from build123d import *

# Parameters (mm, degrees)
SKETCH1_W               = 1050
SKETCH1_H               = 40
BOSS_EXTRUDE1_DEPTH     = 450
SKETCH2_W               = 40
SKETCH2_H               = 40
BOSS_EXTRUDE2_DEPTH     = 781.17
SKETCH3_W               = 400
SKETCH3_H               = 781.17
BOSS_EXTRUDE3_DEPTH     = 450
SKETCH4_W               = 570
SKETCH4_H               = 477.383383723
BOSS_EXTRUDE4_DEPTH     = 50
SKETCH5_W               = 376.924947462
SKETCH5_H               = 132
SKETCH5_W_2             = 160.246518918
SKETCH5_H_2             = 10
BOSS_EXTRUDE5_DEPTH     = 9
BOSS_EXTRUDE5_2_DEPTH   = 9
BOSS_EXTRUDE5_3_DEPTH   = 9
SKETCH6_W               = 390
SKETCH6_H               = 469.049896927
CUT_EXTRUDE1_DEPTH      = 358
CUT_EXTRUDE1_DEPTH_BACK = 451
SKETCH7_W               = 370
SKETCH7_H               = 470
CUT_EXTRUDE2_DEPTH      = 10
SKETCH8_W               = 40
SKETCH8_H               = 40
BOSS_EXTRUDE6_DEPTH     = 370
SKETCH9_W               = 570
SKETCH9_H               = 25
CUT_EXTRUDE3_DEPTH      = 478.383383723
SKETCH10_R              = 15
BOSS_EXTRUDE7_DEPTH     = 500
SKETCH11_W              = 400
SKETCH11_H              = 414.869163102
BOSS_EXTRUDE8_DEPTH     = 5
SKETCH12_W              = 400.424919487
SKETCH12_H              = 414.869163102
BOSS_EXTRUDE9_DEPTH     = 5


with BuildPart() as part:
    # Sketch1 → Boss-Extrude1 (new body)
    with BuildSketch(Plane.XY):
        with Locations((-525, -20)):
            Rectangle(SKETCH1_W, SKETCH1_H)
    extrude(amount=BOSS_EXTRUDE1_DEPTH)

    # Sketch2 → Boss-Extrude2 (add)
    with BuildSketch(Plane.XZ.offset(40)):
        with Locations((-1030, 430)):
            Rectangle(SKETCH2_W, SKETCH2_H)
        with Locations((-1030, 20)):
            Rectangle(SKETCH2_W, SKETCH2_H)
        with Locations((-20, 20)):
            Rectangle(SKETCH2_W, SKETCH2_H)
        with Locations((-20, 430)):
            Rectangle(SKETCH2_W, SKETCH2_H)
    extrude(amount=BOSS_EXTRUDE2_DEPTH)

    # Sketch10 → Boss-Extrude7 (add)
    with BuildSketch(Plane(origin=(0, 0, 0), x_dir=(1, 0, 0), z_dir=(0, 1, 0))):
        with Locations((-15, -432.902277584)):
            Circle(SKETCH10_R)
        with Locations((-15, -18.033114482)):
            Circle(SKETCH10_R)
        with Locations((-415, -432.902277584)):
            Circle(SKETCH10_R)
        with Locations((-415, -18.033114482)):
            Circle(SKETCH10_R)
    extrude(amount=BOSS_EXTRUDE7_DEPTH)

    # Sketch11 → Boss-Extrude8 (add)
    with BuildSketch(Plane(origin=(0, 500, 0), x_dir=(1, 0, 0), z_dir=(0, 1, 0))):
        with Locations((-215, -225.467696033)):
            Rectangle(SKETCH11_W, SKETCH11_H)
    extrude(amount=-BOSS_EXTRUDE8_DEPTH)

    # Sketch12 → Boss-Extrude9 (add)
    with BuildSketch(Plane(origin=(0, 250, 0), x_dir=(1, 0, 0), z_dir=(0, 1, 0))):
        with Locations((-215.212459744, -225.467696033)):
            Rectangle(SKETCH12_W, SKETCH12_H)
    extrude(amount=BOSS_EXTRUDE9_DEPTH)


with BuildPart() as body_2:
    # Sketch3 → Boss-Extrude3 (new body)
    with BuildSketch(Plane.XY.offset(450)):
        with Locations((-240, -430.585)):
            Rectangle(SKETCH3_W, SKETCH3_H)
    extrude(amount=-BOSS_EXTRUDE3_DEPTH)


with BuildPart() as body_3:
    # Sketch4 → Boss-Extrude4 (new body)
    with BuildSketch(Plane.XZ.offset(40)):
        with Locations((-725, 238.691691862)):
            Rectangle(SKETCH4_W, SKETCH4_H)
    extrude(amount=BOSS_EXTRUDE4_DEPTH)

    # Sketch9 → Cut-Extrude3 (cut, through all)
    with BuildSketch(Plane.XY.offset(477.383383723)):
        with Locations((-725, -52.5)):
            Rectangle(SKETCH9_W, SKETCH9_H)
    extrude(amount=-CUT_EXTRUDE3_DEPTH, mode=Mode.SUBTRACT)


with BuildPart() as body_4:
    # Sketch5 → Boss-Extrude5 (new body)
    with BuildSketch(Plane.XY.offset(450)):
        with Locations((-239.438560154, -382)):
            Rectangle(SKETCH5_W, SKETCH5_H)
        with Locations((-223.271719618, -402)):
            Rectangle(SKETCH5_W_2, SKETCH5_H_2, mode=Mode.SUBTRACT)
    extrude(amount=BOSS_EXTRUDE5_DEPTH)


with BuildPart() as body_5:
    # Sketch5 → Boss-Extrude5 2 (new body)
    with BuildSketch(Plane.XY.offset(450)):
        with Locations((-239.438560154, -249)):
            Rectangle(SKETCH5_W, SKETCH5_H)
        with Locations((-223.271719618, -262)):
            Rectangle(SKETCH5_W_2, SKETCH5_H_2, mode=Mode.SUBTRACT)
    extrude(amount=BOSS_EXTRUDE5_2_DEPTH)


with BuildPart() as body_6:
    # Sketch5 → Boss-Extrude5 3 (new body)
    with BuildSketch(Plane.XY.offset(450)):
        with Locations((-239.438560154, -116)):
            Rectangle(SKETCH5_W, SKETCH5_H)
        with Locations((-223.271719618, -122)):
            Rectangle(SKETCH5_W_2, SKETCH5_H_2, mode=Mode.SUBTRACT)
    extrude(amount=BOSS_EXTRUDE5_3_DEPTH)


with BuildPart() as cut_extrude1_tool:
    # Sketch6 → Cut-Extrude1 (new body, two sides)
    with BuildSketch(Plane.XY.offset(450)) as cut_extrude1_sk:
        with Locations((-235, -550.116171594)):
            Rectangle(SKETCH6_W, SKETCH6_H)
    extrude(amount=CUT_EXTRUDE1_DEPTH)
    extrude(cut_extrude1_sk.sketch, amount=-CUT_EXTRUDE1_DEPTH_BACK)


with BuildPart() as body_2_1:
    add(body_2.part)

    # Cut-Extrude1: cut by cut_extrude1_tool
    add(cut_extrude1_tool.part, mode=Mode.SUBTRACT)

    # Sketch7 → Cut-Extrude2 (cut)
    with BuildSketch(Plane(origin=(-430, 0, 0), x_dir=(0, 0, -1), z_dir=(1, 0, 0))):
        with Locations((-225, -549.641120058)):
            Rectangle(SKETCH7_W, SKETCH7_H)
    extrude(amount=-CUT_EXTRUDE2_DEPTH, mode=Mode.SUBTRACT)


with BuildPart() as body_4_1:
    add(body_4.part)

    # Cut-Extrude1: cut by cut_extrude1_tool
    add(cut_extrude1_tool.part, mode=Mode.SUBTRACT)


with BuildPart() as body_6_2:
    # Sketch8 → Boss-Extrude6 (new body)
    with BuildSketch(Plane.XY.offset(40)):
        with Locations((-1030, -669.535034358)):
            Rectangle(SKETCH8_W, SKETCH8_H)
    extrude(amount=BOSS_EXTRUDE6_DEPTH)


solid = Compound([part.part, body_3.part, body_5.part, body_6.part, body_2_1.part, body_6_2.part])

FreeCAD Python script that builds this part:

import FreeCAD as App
import Part
import Sketcher

doc = App.newDocument("Part")
body = doc.addObject("PartDesign::Body", "Body")

sketch1 = body.newObject("Sketcher::SketchObject", "Sketch")
sketch1.AttachmentSupport = (doc.getObject("XY_Plane"), [""])
sketch1.MapMode = "FlatFace"
sketch1.addGeometry([
    Part.LineSegment(App.Vector(-1050, 0, 0), App.Vector(-1050, -40, 0)),
    Part.LineSegment(App.Vector(-1050, -40, 0), App.Vector(0, -40, 0)),
    Part.LineSegment(App.Vector(0, -40, 0), App.Vector(0, 0, 0)),
    Part.LineSegment(App.Vector(0, 0, 0), App.Vector(-1050, 0, 0)),
], False)
sketch1.addConstraint([
    Sketcher.Constraint("Coincident", 0, 2, 1, 1),
    Sketcher.Constraint("Coincident", 1, 2, 2, 1),
    Sketcher.Constraint("Coincident", 2, 2, 3, 1),
    Sketcher.Constraint("Coincident", 3, 2, 0, 1),
    Sketcher.Constraint("Vertical", 0),
    Sketcher.Constraint("Horizontal", 1),
    Sketcher.Constraint("Vertical", 2),
    Sketcher.Constraint("Horizontal", 3),
    Sketcher.Constraint("Coincident", 2, 2, -1, 1),
    Sketcher.Constraint("DistanceX", 1, 1, 1, 2, 1050.0),
    Sketcher.Constraint("DistanceY", 0, 2, 0, 1, 40.0),
])
pad1 = body.newObject("PartDesign::Pad", "Pad")
pad1.Profile = sketch1
pad1.Length = 450

sketch2 = body.newObject("Sketcher::SketchObject", "Sketch001")
sketch2.AttachmentSupport = (doc.getObject("XZ_Plane"), [""])
sketch2.MapMode = "FlatFace"
sketch2.AttachmentOffset = App.Placement(App.Vector(0, 0, 40), App.Rotation())
sketch2.addGeometry([
    Part.LineSegment(App.Vector(-1050, 450, 0), App.Vector(-1050, 410, 0)),
    Part.LineSegment(App.Vector(-1050, 410, 0), App.Vector(-1010, 410, 0)),
    Part.LineSegment(App.Vector(-1010, 410, 0), App.Vector(-1010, 450, 0)),
    Part.LineSegment(App.Vector(-1010, 450, 0), App.Vector(-1050, 450, 0)),
    Part.LineSegment(App.Vector(-1050, 40, 0), App.Vector(-1050, 0, 0)),
    Part.LineSegment(App.Vector(-1050, 0, 0), App.Vector(-1010, 0, 0)),
    Part.LineSegment(App.Vector(-1010, 0, 0), App.Vector(-1010, 40, 0)),
    Part.LineSegment(App.Vector(-1010, 40, 0), App.Vector(-1050, 40, 0)),
    Part.LineSegment(App.Vector(-40, 40, 0), App.Vector(-40, 0, 0)),
    Part.LineSegment(App.Vector(-40, 0, 0), App.Vector(0, 0, 0)),
    Part.LineSegment(App.Vector(0, 0, 0), App.Vector(0, 40, 0)),
    Part.LineSegment(App.Vector(0, 40, 0), App.Vector(-40, 40, 0)),
    Part.LineSegment(App.Vector(-40, 450, 0), App.Vector(-40, 410, 0)),
    Part.LineSegment(App.Vector(-40, 410, 0), App.Vector(0, 410, 0)),
    Part.LineSegment(App.Vector(0, 410, 0), App.Vector(0, 450, 0)),
    Part.LineSegment(App.Vector(0, 450, 0), App.Vector(-40, 450, 0)),
], False)
sketch2.addConstraint([
    Sketcher.Constraint("Coincident", 0, 2, 1, 1),
    Sketcher.Constraint("Coincident", 1, 2, 2, 1),
    Sketcher.Constraint("Coincident", 2, 2, 3, 1),
    Sketcher.Constraint("Coincident", 3, 2, 0, 1),
    Sketcher.Constraint("Coincident", 4, 2, 5, 1),
    Sketcher.Constraint("Coincident", 5, 2, 6, 1),
    Sketcher.Constraint("Coincident", 6, 2, 7, 1),
    Sketcher.Constraint("Coincident", 7, 2, 4, 1),
    Sketcher.Constraint("Coincident", 8, 2, 9, 1),
    Sketcher.Constraint("Coincident", 9, 2, 10, 1),
    Sketcher.Constraint("Coincident", 10, 2, 11, 1),
    Sketcher.Constraint("Coincident", 11, 2, 8, 1),
    Sketcher.Constraint("Coincident", 12, 2, 13, 1),
    Sketcher.Constraint("Coincident", 13, 2, 14, 1),
    Sketcher.Constraint("Coincident", 14, 2, 15, 1),
    Sketcher.Constraint("Coincident", 15, 2, 12, 1),
    Sketcher.Constraint("Vertical", 0),
    Sketcher.Constraint("Horizontal", 1),
    Sketcher.Constraint("Vertical", 2),
    Sketcher.Constraint("Horizontal", 3),
    Sketcher.Constraint("Vertical", 4),
    Sketcher.Constraint("Horizontal", 5),
    Sketcher.Constraint("Vertical", 6),
    Sketcher.Constraint("Horizontal", 7),
    Sketcher.Constraint("Vertical", 8),
    Sketcher.Constraint("Horizontal", 9),
    Sketcher.Constraint("Vertical", 10),
    Sketcher.Constraint("Horizontal", 11),
    Sketcher.Constraint("Vertical", 12),
    Sketcher.Constraint("Horizontal", 13),
    Sketcher.Constraint("Vertical", 14),
    Sketcher.Constraint("Horizontal", 15),
    Sketcher.Constraint("Coincident", 9, 2, -1, 1),
    Sketcher.Constraint("PointOnObject", 4, 2, -1),
    Sketcher.Constraint("PointOnObject", 13, 2, -2),
    Sketcher.Constraint("Horizontal", 7, 2, 10, 2),
    Sketcher.Constraint("Horizontal", 1, 2, 12, 2),
    Sketcher.Constraint("Horizontal", 3, 2, 14, 2),
    Sketcher.Constraint("Vertical", 3, 2, 4, 2),
    Sketcher.Constraint("Vertical", 2, 2, 5, 2),
    Sketcher.Constraint("Vertical", 11, 2, 12, 2),
    Sketcher.Constraint("Equal", 7, 9),
    Sketcher.Constraint("Equal", 15, 0),
    Sketcher.Constraint("Equal", 2, 4),
    Sketcher.Constraint("DistanceX", 1, 1, 1, 2, 40.0),
    Sketcher.Constraint("DistanceX", 0, 2, -1, 1, 1050.0),
    Sketcher.Constraint("DistanceY", -1, 1, 0, 2, 410.0),
])
pad2 = body.newObject("PartDesign::Pad", "Pad001")
pad2.Profile = sketch2
pad2.Length = 781.17

sketch3 = body.newObject("Sketcher::SketchObject", "Sketch002")
sketch3.AttachmentSupport = (doc.getObject("XZ_Plane"), [""])
sketch3.MapMode = "FlatFace"
sketch3.addGeometry([
    Part.Circle(App.Vector(-15, 432.902278, 0), App.Vector(0, 0, 1), 15),
    Part.Circle(App.Vector(-15, 18.033114, 0), App.Vector(0, 0, 1), 15),
    Part.Circle(App.Vector(-415, 432.902278, 0), App.Vector(0, 0, 1), 15),
    Part.Circle(App.Vector(-415, 18.033114, 0), App.Vector(0, 0, 1), 15),
], False)
sketch3.addConstraint([
    Sketcher.Constraint("Equal", 0, 1),
    Sketcher.Constraint("Equal", 1, 2),
    Sketcher.Constraint("Equal", 2, 3),
    Sketcher.Constraint("Horizontal", 0, 3, 2, 3),
    Sketcher.Constraint("Horizontal", 1, 3, 3, 3),
    Sketcher.Constraint("Vertical", 0, 3, 1, 3),
    Sketcher.Constraint("Vertical", 2, 3, 3, 3),
    Sketcher.Constraint("Diameter", 0, 30.0),
    Sketcher.Constraint("DistanceX", 0, 3, -1, 1, 15.0),
    Sketcher.Constraint("DistanceX", 2, 3, -1, 1, 415.0),
    Sketcher.Constraint("DistanceY", -1, 1, 0, 3, 432.902278),
    Sketcher.Constraint("DistanceY", -1, 1, 1, 3, 18.033114),
])
pad3 = body.newObject("PartDesign::Pad", "Pad002")
pad3.Profile = sketch3
pad3.Length = 500
pad3.Reversed = True

sketch4 = body.newObject("Sketcher::SketchObject", "Sketch003")
sketch4.AttachmentSupport = (doc.getObject("XZ_Plane"), [""])
sketch4.MapMode = "FlatFace"
sketch4.AttachmentOffset = App.Placement(App.Vector(0, 0, -500), App.Rotation())
sketch4.addGeometry([
    Part.LineSegment(App.Vector(-415, 18.033114, 0), App.Vector(-415, 432.902278, 0)),
    Part.LineSegment(App.Vector(-415, 432.902278, 0), App.Vector(-15, 432.902278, 0)),
    Part.LineSegment(App.Vector(-15, 432.902278, 0), App.Vector(-15, 18.033114, 0)),
    Part.LineSegment(App.Vector(-15, 18.033114, 0), App.Vector(-415, 18.033114, 0)),
], False)
sketch4.addConstraint([
    Sketcher.Constraint("Coincident", 0, 2, 1, 1),
    Sketcher.Constraint("Coincident", 1, 2, 2, 1),
    Sketcher.Constraint("Coincident", 2, 2, 3, 1),
    Sketcher.Constraint("Coincident", 3, 2, 0, 1),
    Sketcher.Constraint("Vertical", 0),
    Sketcher.Constraint("Horizontal", 1),
    Sketcher.Constraint("Vertical", 2),
    Sketcher.Constraint("Horizontal", 3),
    Sketcher.Constraint("DistanceX", 1, 1, 1, 2, 400.0),
    Sketcher.Constraint("DistanceX", 0, 2, -1, 1, 415.0),
    Sketcher.Constraint("DistanceY", 0, 1, 0, 2, 414.869163),
    Sketcher.Constraint("DistanceY", -1, 1, 0, 2, 432.902278),
])
pad4 = body.newObject("PartDesign::Pad", "Pad003")
pad4.Profile = sketch4
pad4.Length = 5

sketch5 = body.newObject("Sketcher::SketchObject", "Sketch004")
sketch5.AttachmentSupport = (doc.getObject("XZ_Plane"), [""])
sketch5.MapMode = "FlatFace"
sketch5.AttachmentOffset = App.Placement(App.Vector(0, 0, -250), App.Rotation())
sketch5.addGeometry([
    Part.LineSegment(App.Vector(-415.424919, 18.033114, 0), App.Vector(-415.424919, 432.902278, 0)),
    Part.LineSegment(App.Vector(-415.424919, 432.902278, 0), App.Vector(-15, 432.902278, 0)),
    Part.LineSegment(App.Vector(-15, 432.902278, 0), App.Vector(-15, 18.033114, 0)),
    Part.LineSegment(App.Vector(-15, 18.033114, 0), App.Vector(-415.424919, 18.033114, 0)),
], False)
sketch5.addConstraint([
    Sketcher.Constraint("Coincident", 0, 2, 1, 1),
    Sketcher.Constraint("Coincident", 1, 2, 2, 1),
    Sketcher.Constraint("Coincident", 2, 2, 3, 1),
    Sketcher.Constraint("Coincident", 3, 2, 0, 1),
    Sketcher.Constraint("Vertical", 0),
    Sketcher.Constraint("Horizontal", 1),
    Sketcher.Constraint("Vertical", 2),
    Sketcher.Constraint("Horizontal", 3),
    Sketcher.Constraint("DistanceX", 1, 2, -1, 1, 15.0),
    Sketcher.Constraint("DistanceX", 1, 1, 1, 2, 400.424919),
    Sketcher.Constraint("DistanceY", 0, 1, 0, 2, 414.869163),
    Sketcher.Constraint("DistanceY", -1, 1, 0, 2, 432.902278),
])
pad5 = body.newObject("PartDesign::Pad", "Pad004")
pad5.Profile = sketch5
pad5.Length = 5
pad5.Reversed = True
body2 = doc.addObject("PartDesign::Body", "Body001")

sketch6 = body2.newObject("Sketcher::SketchObject", "Sketch005")
sketch6.AttachmentSupport = (doc.getObject("XY_Plane001"), [""])
sketch6.MapMode = "FlatFace"
sketch6.AttachmentOffset = App.Placement(App.Vector(0, 0, 450), App.Rotation())
sketch6.addGeometry([
    Part.LineSegment(App.Vector(-440, -40, 0), App.Vector(-440, -821.17, 0)),
    Part.LineSegment(App.Vector(-440, -821.17, 0), App.Vector(-40, -821.17, 0)),
    Part.LineSegment(App.Vector(-40, -821.17, 0), App.Vector(-40, -40, 0)),
    Part.LineSegment(App.Vector(-40, -40, 0), App.Vector(-440, -40, 0)),
], False)
sketch6.addConstraint([
    Sketcher.Constraint("Coincident", 0, 2, 1, 1),
    Sketcher.Constraint("Coincident", 1, 2, 2, 1),
    Sketcher.Constraint("Coincident", 2, 2, 3, 1),
    Sketcher.Constraint("Coincident", 3, 2, 0, 1),
    Sketcher.Constraint("Vertical", 0),
    Sketcher.Constraint("Horizontal", 1),
    Sketcher.Constraint("Vertical", 2),
    Sketcher.Constraint("Horizontal", 3),
    Sketcher.Constraint("DistanceX", 1, 1, 1, 2, 400.0),
    Sketcher.Constraint("DistanceX", 0, 2, -1, 1, 440.0),
    Sketcher.Constraint("DistanceY", 2, 2, -1, 1, 40.0),
    Sketcher.Constraint("DistanceY", 0, 2, 0, 1, 781.17),
])
pad6 = body2.newObject("PartDesign::Pad", "Pad005")
pad6.Profile = sketch6
pad6.Length = 450
pad6.Reversed = True
body3 = doc.addObject("PartDesign::Body", "Body002")

sketch7 = body3.newObject("Sketcher::SketchObject", "Sketch006")
sketch7.AttachmentSupport = (doc.getObject("XZ_Plane002"), [""])
sketch7.MapMode = "FlatFace"
sketch7.AttachmentOffset = App.Placement(App.Vector(0, 0, 40), App.Rotation())
sketch7.addGeometry([
    Part.LineSegment(App.Vector(-1010, 477.383384, 0), App.Vector(-1010, 0, 0)),
    Part.LineSegment(App.Vector(-1010, 0, 0), App.Vector(-440, 0, 0)),
    Part.LineSegment(App.Vector(-440, 0, 0), App.Vector(-440, 477.383384, 0)),
    Part.LineSegment(App.Vector(-440, 477.383384, 0), App.Vector(-1010, 477.383384, 0)),
], False)
sketch7.addConstraint([
    Sketcher.Constraint("Coincident", 0, 2, 1, 1),
    Sketcher.Constraint("Coincident", 1, 2, 2, 1),
    Sketcher.Constraint("Coincident", 2, 2, 3, 1),
    Sketcher.Constraint("Coincident", 3, 2, 0, 1),
    Sketcher.Constraint("Vertical", 0),
    Sketcher.Constraint("Horizontal", 1),
    Sketcher.Constraint("Vertical", 2),
    Sketcher.Constraint("Horizontal", 3),
    Sketcher.Constraint("PointOnObject", 0, 2, -1),
    Sketcher.Constraint("DistanceX", 1, 1, 1, 2, 570.0),
    Sketcher.Constraint("DistanceX", 0, 2, -1, 1, 1010.0),
    Sketcher.Constraint("DistanceY", 0, 2, 0, 1, 477.383384),
])
pad7 = body3.newObject("PartDesign::Pad", "Pad006")
pad7.Profile = sketch7
pad7.Length = 50

sketch8 = body3.newObject("Sketcher::SketchObject", "Sketch007")
sketch8.AttachmentSupport = (doc.getObject("XY_Plane002"), [""])
sketch8.MapMode = "FlatFace"
sketch8.AttachmentOffset = App.Placement(App.Vector(0, 0, 477.383384), App.Rotation())
sketch8.addGeometry([
    Part.LineSegment(App.Vector(-1010, -40, 0), App.Vector(-1010, -65, 0)),
    Part.LineSegment(App.Vector(-1010, -65, 0), App.Vector(-440, -65, 0)),
    Part.LineSegment(App.Vector(-440, -65, 0), App.Vector(-440, -40, 0)),
    Part.LineSegment(App.Vector(-440, -40, 0), App.Vector(-1010, -40, 0)),
], False)
sketch8.addConstraint([
    Sketcher.Constraint("Coincident", 0, 2, 1, 1),
    Sketcher.Constraint("Coincident", 1, 2, 2, 1),
    Sketcher.Constraint("Coincident", 2, 2, 3, 1),
    Sketcher.Constraint("Coincident", 3, 2, 0, 1),
    Sketcher.Constraint("Vertical", 0),
    Sketcher.Constraint("Horizontal", 1),
    Sketcher.Constraint("Vertical", 2),
    Sketcher.Constraint("Horizontal", 3),
    Sketcher.Constraint("DistanceX", 1, 1, 1, 2, 570.0),
    Sketcher.Constraint("DistanceY", 0, 2, 0, 1, 25.0),
    Sketcher.Constraint("DistanceX", 0, 2, -1, 1, 1010.0),
    Sketcher.Constraint("DistanceY", 0, 2, -1, 1, 65.0),
])
pocket1 = body3.newObject("PartDesign::Pocket", "Pocket")
pocket1.Profile = sketch8
pocket1.Type = "ThroughAll"
body4 = doc.addObject("PartDesign::Body", "Body003")

sketch9 = body4.newObject("Sketcher::SketchObject", "Sketch008")
sketch9.AttachmentSupport = (doc.getObject("XY_Plane003"), [""])
sketch9.MapMode = "FlatFace"
sketch9.AttachmentOffset = App.Placement(App.Vector(0, 0, 450), App.Rotation())
sketch9.addGeometry([
    Part.LineSegment(App.Vector(-427.901034, -316, 0), App.Vector(-427.901034, -448, 0)),
    Part.LineSegment(App.Vector(-427.901034, -448, 0), App.Vector(-50.976086, -448, 0)),
    Part.LineSegment(App.Vector(-50.976086, -448, 0), App.Vector(-50.976086, -316, 0)),
    Part.LineSegment(App.Vector(-50.976086, -316, 0), App.Vector(-427.901034, -316, 0)),
    Part.LineSegment(App.Vector(-143.14846, -407, 0), App.Vector(-303.394979, -407, 0)),
    Part.LineSegment(App.Vector(-303.394979, -407, 0), App.Vector(-303.394979, -397, 0)),
    Part.LineSegment(App.Vector(-303.394979, -397, 0), App.Vector(-143.14846, -397, 0)),
    Part.LineSegment(App.Vector(-143.14846, -397, 0), App.Vector(-143.14846, -407, 0)),
], False)
sketch9.addConstraint([
    Sketcher.Constraint("Coincident", 0, 2, 1, 1),
    Sketcher.Constraint("Coincident", 1, 2, 2, 1),
    Sketcher.Constraint("Coincident", 2, 2, 3, 1),
    Sketcher.Constraint("Coincident", 3, 2, 0, 1),
    Sketcher.Constraint("Coincident", 4, 2, 5, 1),
    Sketcher.Constraint("Coincident", 5, 2, 6, 1),
    Sketcher.Constraint("Coincident", 6, 2, 7, 1),
    Sketcher.Constraint("Coincident", 7, 2, 4, 1),
    Sketcher.Constraint("Vertical", 0),
    Sketcher.Constraint("Horizontal", 1),
    Sketcher.Constraint("Vertical", 2),
    Sketcher.Constraint("Horizontal", 3),
    Sketcher.Constraint("Horizontal", 4),
    Sketcher.Constraint("Vertical", 5),
    Sketcher.Constraint("Horizontal", 6),
    Sketcher.Constraint("Vertical", 7),
    Sketcher.Constraint("DistanceY", 0, 2, 0, 1, 132.0),
    Sketcher.Constraint("DistanceY", 5, 1, 5, 2, 10.0),
    Sketcher.Constraint("DistanceY", 0, 2, -1, 1, 448.0),
    Sketcher.Constraint("DistanceY", 4, 2, -1, 1, 407.0),
    Sketcher.Constraint("DistanceX", 4, 2, 4, 1, 160.246519),
    Sketcher.Constraint("DistanceX", 1, 1, 1, 2, 376.924947),
    Sketcher.Constraint("DistanceX", 4, 2, -1, 1, 303.394979),
    Sketcher.Constraint("DistanceX", 0, 2, -1, 1, 427.901034),
])
pad8 = body4.newObject("PartDesign::Pad", "Pad007")
pad8.Profile = sketch9
pad8.Length = 9
body5 = doc.addObject("PartDesign::Body", "Body004")

sketch10 = body5.newObject("Sketcher::SketchObject", "Sketch009")
sketch10.AttachmentSupport = (doc.getObject("XY_Plane004"), [""])
sketch10.MapMode = "FlatFace"
sketch10.AttachmentOffset = App.Placement(App.Vector(0, 0, 450), App.Rotation())
sketch10.addGeometry([
    Part.LineSegment(App.Vector(-427.901034, -183, 0), App.Vector(-427.901034, -315, 0)),
    Part.LineSegment(App.Vector(-427.901034, -315, 0), App.Vector(-50.976086, -315, 0)),
    Part.LineSegment(App.Vector(-50.976086, -315, 0), App.Vector(-50.976086, -183, 0)),
    Part.LineSegment(App.Vector(-50.976086, -183, 0), App.Vector(-427.901034, -183, 0)),
    Part.LineSegment(App.Vector(-143.14846, -267, 0), App.Vector(-303.394979, -267, 0)),
    Part.LineSegment(App.Vector(-303.394979, -267, 0), App.Vector(-303.394979, -257, 0)),
    Part.LineSegment(App.Vector(-303.394979, -257, 0), App.Vector(-143.14846, -257, 0)),
    Part.LineSegment(App.Vector(-143.14846, -257, 0), App.Vector(-143.14846, -267, 0)),
], False)
sketch10.addConstraint([
    Sketcher.Constraint("Coincident", 0, 2, 1, 1),
    Sketcher.Constraint("Coincident", 1, 2, 2, 1),
    Sketcher.Constraint("Coincident", 2, 2, 3, 1),
    Sketcher.Constraint("Coincident", 3, 2, 0, 1),
    Sketcher.Constraint("Coincident", 4, 2, 5, 1),
    Sketcher.Constraint("Coincident", 5, 2, 6, 1),
    Sketcher.Constraint("Coincident", 6, 2, 7, 1),
    Sketcher.Constraint("Coincident", 7, 2, 4, 1),
    Sketcher.Constraint("Vertical", 0),
    Sketcher.Constraint("Horizontal", 1),
    Sketcher.Constraint("Vertical", 2),
    Sketcher.Constraint("Horizontal", 3),
    Sketcher.Constraint("Horizontal", 4),
    Sketcher.Constraint("Vertical", 5),
    Sketcher.Constraint("Horizontal", 6),
    Sketcher.Constraint("Vertical", 7),
    Sketcher.Constraint("DistanceY", 0, 2, 0, 1, 132.0),
    Sketcher.Constraint("DistanceY", 5, 1, 5, 2, 10.0),
    Sketcher.Constraint("DistanceY", 0, 2, -1, 1, 315.0),
    Sketcher.Constraint("DistanceY", 4, 2, -1, 1, 267.0),
    Sketcher.Constraint("DistanceX", 4, 2, 4, 1, 160.246519),
    Sketcher.Constraint("DistanceX", 1, 1, 1, 2, 376.924947),
    Sketcher.Constraint("DistanceX", 4, 2, -1, 1, 303.394979),
    Sketcher.Constraint("DistanceX", 0, 2, -1, 1, 427.901034),
])
pad9 = body5.newObject("PartDesign::Pad", "Pad008")
pad9.Profile = sketch10
pad9.Length = 9
body6 = doc.addObject("PartDesign::Body", "Body005")

sketch11 = body6.newObject("Sketcher::SketchObject", "Sketch010")
sketch11.AttachmentSupport = (doc.getObject("XY_Plane005"), [""])
sketch11.MapMode = "FlatFace"
sketch11.AttachmentOffset = App.Placement(App.Vector(0, 0, 450), App.Rotation())
sketch11.addGeometry([
    Part.LineSegment(App.Vector(-427.901034, -50, 0), App.Vector(-427.901034, -182, 0)),
    Part.LineSegment(App.Vector(-427.901034, -182, 0), App.Vector(-50.976086, -182, 0)),
    Part.LineSegment(App.Vector(-50.976086, -182, 0), App.Vector(-50.976086, -50, 0)),
    Part.LineSegment(App.Vector(-50.976086, -50, 0), App.Vector(-427.901034, -50, 0)),
    Part.LineSegment(App.Vector(-143.14846, -127, 0), App.Vector(-303.394979, -127, 0)),
    Part.LineSegment(App.Vector(-303.394979, -127, 0), App.Vector(-303.394979, -117, 0)),
    Part.LineSegment(App.Vector(-303.394979, -117, 0), App.Vector(-143.14846, -117, 0)),
    Part.LineSegment(App.Vector(-143.14846, -117, 0), App.Vector(-143.14846, -127, 0)),
], False)
sketch11.addConstraint([
    Sketcher.Constraint("Coincident", 0, 2, 1, 1),
    Sketcher.Constraint("Coincident", 1, 2, 2, 1),
    Sketcher.Constraint("Coincident", 2, 2, 3, 1),
    Sketcher.Constraint("Coincident", 3, 2, 0, 1),
    Sketcher.Constraint("Coincident", 4, 2, 5, 1),
    Sketcher.Constraint("Coincident", 5, 2, 6, 1),
    Sketcher.Constraint("Coincident", 6, 2, 7, 1),
    Sketcher.Constraint("Coincident", 7, 2, 4, 1),
    Sketcher.Constraint("Vertical", 0),
    Sketcher.Constraint("Horizontal", 1),
    Sketcher.Constraint("Vertical", 2),
    Sketcher.Constraint("Horizontal", 3),
    Sketcher.Constraint("Horizontal", 4),
    Sketcher.Constraint("Vertical", 5),
    Sketcher.Constraint("Horizontal", 6),
    Sketcher.Constraint("Vertical", 7),
    Sketcher.Constraint("DistanceY", 0, 2, 0, 1, 132.0),
    Sketcher.Constraint("DistanceY", 5, 1, 5, 2, 10.0),
    Sketcher.Constraint("DistanceY", 0, 2, -1, 1, 182.0),
    Sketcher.Constraint("DistanceY", 4, 2, -1, 1, 127.0),
    Sketcher.Constraint("DistanceX", 4, 2, 4, 1, 160.246519),
    Sketcher.Constraint("DistanceX", 1, 1, 1, 2, 376.924947),
    Sketcher.Constraint("DistanceX", 4, 2, -1, 1, 303.394979),
    Sketcher.Constraint("DistanceX", 0, 2, -1, 1, 427.901034),
])
pad10 = body6.newObject("PartDesign::Pad", "Pad009")
pad10.Profile = sketch11
pad10.Length = 9
body7 = doc.addObject("PartDesign::Body", "Body006")

sketch12 = body7.newObject("Sketcher::SketchObject", "Sketch011")
sketch12.AttachmentSupport = (doc.getObject("XY_Plane006"), [""])
sketch12.MapMode = "FlatFace"
sketch12.AttachmentOffset = App.Placement(App.Vector(0, 0, 450), App.Rotation())
sketch12.addGeometry([
    Part.LineSegment(App.Vector(-430, -315.591223, 0), App.Vector(-430, -784.64112, 0)),
    Part.LineSegment(App.Vector(-430, -784.64112, 0), App.Vector(-40, -784.64112, 0)),
    Part.LineSegment(App.Vector(-40, -784.64112, 0), App.Vector(-40, -315.591223, 0)),
    Part.LineSegment(App.Vector(-40, -315.591223, 0), App.Vector(-430, -315.591223, 0)),
], False)
sketch12.addConstraint([
    Sketcher.Constraint("Coincident", 0, 2, 1, 1),
    Sketcher.Constraint("Coincident", 1, 2, 2, 1),
    Sketcher.Constraint("Coincident", 2, 2, 3, 1),
    Sketcher.Constraint("Coincident", 3, 2, 0, 1),
    Sketcher.Constraint("Vertical", 0),
    Sketcher.Constraint("Horizontal", 1),
    Sketcher.Constraint("Vertical", 2),
    Sketcher.Constraint("Horizontal", 3),
    Sketcher.Constraint("DistanceX", 1, 1, 1, 2, 390.0),
    Sketcher.Constraint("DistanceX", 0, 2, -1, 1, 430.0),
    Sketcher.Constraint("DistanceY", 0, 2, 0, 1, 469.049897),
    Sketcher.Constraint("DistanceY", 0, 2, -1, 1, 784.64112),
])
pad11 = body7.newObject("PartDesign::Pad", "Pad010")
pad11.Profile = sketch12
pad11.Type = "TwoLengths"
pad11.Length = 358
pad11.Length2 = 451
doc.recompute()

body8 = doc.addObject("PartDesign::Body", "Body007")
body8.BaseFeature = body7
boolean = body2.newObject("PartDesign::Boolean", "Boolean")
boolean.Type = "Cut"
boolean.addObjects([body8])
doc.recompute()

sketch13 = body2.newObject("Sketcher::SketchObject", "Sketch012")
sketch13.AttachmentSupport = (doc.getObject("YZ_Plane001"), [""])
sketch13.MapMode = "FlatFace"
sketch13.AttachmentOffset = App.Placement(App.Vector(0, 0, -430), App.Rotation())
sketch13.addGeometry([
    Part.LineSegment(App.Vector(-314.64112, 410, 0), App.Vector(-784.64112, 410, 0)),
    Part.LineSegment(App.Vector(-784.64112, 410, 0), App.Vector(-784.64112, 40, 0)),
    Part.LineSegment(App.Vector(-784.64112, 40, 0), App.Vector(-314.64112, 40, 0)),
    Part.LineSegment(App.Vector(-314.64112, 40, 0), App.Vector(-314.64112, 410, 0)),
], False)
sketch13.addConstraint([
    Sketcher.Constraint("Coincident", 0, 2, 1, 1),
    Sketcher.Constraint("Coincident", 1, 2, 2, 1),
    Sketcher.Constraint("Coincident", 2, 2, 3, 1),
    Sketcher.Constraint("Coincident", 3, 2, 0, 1),
    Sketcher.Constraint("Horizontal", 0),
    Sketcher.Constraint("Vertical", 1),
    Sketcher.Constraint("Horizontal", 2),
    Sketcher.Constraint("Vertical", 3),
    Sketcher.Constraint("DistanceX", 0, 2, 0, 1, 470.0),
    Sketcher.Constraint("DistanceY", 1, 2, 1, 1, 370.0),
    Sketcher.Constraint("DistanceY", -1, 1, 0, 2, 410.0),
    Sketcher.Constraint("DistanceX", 0, 2, -1, 1, 784.64112),
])
pocket2 = body2.newObject("PartDesign::Pocket", "Pocket001")
pocket2.Profile = sketch13
pocket2.Length = 10
doc.recompute()

boolean2 = body4.newObject("PartDesign::Boolean", "Boolean001")
boolean2.Type = "Cut"
boolean2.addObjects([body7])
body9 = doc.addObject("PartDesign::Body", "Body008")

sketch14 = body9.newObject("Sketcher::SketchObject", "Sketch013")
sketch14.AttachmentSupport = (doc.getObject("XY_Plane008"), [""])
sketch14.MapMode = "FlatFace"
sketch14.AttachmentOffset = App.Placement(App.Vector(0, 0, 40), App.Rotation())
sketch14.addGeometry([
    Part.LineSegment(App.Vector(-1050, -649.535034, 0), App.Vector(-1050, -689.535034, 0)),
    Part.LineSegment(App.Vector(-1050, -689.535034, 0), App.Vector(-1010, -689.535034, 0)),
    Part.LineSegment(App.Vector(-1010, -689.535034, 0), App.Vector(-1010, -649.535034, 0)),
    Part.LineSegment(App.Vector(-1010, -649.535034, 0), App.Vector(-1050, -649.535034, 0)),
], False)
sketch14.addConstraint([
    Sketcher.Constraint("Coincident", 0, 2, 1, 1),
    Sketcher.Constraint("Coincident", 1, 2, 2, 1),
    Sketcher.Constraint("Coincident", 2, 2, 3, 1),
    Sketcher.Constraint("Coincident", 3, 2, 0, 1),
    Sketcher.Constraint("Vertical", 0),
    Sketcher.Constraint("Horizontal", 1),
    Sketcher.Constraint("Vertical", 2),
    Sketcher.Constraint("Horizontal", 3),
    Sketcher.Constraint("Equal", 3, 0),
    Sketcher.Constraint("DistanceX", 1, 1, 1, 2, 40.0),
    Sketcher.Constraint("DistanceX", 0, 2, -1, 1, 1050.0),
    Sketcher.Constraint("DistanceY", 0, 2, -1, 1, 689.535034),
])
pad12 = body9.newObject("PartDesign::Pad", "Pad011")
pad12.Profile = sketch14
pad12.Length = 370

doc.recompute()
